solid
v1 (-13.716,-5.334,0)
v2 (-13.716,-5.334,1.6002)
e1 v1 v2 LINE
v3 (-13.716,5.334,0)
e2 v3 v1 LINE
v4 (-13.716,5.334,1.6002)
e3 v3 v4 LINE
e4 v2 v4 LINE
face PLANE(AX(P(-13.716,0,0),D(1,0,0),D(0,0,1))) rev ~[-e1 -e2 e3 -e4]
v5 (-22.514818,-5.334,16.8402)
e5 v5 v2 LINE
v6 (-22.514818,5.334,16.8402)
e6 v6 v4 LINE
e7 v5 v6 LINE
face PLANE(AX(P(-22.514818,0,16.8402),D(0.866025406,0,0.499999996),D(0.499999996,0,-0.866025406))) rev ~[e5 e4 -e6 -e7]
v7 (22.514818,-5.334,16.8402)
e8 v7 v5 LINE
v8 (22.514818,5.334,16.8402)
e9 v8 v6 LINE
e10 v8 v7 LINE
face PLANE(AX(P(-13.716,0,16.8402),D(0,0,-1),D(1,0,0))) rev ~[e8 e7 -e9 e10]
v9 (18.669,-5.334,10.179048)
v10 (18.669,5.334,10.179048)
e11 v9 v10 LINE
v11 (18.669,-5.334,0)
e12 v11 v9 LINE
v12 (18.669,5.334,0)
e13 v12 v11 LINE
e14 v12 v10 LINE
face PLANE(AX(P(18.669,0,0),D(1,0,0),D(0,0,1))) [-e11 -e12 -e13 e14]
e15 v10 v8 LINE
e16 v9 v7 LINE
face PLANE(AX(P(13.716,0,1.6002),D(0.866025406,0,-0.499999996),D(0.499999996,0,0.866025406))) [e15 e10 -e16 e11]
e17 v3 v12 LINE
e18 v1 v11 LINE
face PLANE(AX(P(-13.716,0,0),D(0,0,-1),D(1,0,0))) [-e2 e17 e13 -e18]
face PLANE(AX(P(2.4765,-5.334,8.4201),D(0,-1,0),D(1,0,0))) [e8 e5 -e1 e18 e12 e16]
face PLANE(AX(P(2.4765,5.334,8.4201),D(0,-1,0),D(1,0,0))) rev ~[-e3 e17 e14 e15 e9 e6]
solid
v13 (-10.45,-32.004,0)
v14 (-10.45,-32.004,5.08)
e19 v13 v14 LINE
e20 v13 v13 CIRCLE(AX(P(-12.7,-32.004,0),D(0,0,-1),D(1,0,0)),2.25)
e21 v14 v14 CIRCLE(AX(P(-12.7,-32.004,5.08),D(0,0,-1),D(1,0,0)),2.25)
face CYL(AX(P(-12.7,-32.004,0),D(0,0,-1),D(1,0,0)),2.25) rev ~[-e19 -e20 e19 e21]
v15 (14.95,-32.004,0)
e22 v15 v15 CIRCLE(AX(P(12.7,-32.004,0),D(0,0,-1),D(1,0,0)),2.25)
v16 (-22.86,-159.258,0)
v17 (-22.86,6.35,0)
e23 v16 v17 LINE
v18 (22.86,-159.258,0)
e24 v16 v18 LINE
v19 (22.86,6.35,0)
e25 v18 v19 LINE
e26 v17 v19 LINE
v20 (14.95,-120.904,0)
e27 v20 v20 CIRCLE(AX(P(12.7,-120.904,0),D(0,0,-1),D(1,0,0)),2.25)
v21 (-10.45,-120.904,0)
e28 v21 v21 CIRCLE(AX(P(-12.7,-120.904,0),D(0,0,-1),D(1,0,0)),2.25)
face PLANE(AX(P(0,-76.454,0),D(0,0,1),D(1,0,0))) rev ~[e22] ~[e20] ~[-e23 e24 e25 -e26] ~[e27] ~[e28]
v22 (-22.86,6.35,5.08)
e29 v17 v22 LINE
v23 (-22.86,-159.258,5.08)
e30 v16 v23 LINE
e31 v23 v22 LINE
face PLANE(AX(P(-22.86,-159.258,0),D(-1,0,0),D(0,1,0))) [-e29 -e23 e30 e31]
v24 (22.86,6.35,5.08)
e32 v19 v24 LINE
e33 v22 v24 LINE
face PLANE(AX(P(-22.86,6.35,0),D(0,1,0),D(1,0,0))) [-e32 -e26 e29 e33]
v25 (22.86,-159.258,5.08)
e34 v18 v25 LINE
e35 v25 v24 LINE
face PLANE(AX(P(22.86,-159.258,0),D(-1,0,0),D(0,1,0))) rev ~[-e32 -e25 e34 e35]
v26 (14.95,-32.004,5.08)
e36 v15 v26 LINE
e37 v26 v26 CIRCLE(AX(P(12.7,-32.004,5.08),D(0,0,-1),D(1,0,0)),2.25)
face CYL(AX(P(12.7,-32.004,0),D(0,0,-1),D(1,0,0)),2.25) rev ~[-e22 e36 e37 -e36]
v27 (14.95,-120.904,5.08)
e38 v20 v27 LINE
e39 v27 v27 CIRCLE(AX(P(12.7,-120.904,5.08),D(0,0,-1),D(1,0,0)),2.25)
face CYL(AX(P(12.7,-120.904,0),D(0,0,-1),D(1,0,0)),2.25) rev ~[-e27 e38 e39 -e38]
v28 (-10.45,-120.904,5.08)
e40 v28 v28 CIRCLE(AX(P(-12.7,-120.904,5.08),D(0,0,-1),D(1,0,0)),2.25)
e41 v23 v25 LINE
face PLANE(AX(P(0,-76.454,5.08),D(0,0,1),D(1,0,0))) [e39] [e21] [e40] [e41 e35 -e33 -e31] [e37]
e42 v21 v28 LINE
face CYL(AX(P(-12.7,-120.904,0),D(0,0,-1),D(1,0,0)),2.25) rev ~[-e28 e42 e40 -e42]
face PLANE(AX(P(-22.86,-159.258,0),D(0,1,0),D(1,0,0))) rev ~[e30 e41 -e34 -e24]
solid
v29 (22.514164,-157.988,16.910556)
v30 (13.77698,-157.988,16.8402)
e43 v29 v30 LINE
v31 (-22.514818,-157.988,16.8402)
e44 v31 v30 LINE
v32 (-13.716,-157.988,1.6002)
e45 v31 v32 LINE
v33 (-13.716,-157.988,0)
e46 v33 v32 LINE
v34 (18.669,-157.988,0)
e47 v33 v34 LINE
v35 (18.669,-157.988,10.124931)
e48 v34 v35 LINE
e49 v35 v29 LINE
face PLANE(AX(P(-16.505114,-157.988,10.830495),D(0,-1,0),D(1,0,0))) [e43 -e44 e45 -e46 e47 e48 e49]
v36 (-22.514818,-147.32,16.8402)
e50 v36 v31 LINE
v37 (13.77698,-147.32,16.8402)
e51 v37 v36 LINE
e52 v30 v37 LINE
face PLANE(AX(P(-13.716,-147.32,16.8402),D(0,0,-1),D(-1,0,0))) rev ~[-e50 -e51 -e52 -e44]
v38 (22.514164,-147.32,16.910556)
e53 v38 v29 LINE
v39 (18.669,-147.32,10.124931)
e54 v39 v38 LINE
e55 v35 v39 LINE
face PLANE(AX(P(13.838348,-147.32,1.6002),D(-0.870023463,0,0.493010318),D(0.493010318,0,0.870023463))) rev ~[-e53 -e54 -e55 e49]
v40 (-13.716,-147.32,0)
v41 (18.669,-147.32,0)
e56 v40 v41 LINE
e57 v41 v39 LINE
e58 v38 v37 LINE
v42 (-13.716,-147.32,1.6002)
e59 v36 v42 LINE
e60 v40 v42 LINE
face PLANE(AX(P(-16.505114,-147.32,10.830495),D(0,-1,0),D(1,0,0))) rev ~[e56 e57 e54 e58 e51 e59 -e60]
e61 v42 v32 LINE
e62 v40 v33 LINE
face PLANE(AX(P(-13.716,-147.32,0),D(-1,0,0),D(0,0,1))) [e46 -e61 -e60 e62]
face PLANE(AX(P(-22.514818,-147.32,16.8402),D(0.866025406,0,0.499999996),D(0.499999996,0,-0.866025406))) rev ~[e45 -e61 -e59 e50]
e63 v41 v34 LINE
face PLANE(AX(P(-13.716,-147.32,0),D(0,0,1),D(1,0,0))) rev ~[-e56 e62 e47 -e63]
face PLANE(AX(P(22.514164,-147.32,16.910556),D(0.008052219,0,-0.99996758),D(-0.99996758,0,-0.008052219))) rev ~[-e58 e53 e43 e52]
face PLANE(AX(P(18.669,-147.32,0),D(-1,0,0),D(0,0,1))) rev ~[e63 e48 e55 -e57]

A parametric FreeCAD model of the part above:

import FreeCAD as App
import Part
import Sketcher

V = App.Vector
Q = App.Units.Quantity


def add_polygon(sketch, points):
    """Adds a closed chain of lines whose ends are joined by coincident constraints."""
    first, n = sketch.GeometryCount, len(points)
    for a, b in zip(points, points[1:] + points[:1]):
        sketch.addGeometry(Part.LineSegment(App.Vector(*a, 0), App.Vector(*b, 0)), False)
    for i in range(n):
        sketch.addConstraint(Sketcher.Constraint("Coincident", first + i, 2, first + (i + 1) % n, 1))

doc = App.newDocument("Part")
body = doc.addObject("PartDesign::Body", "Body")

sketch1 = doc.addObject("Sketcher::SketchObject", "Sketch")
body.addObject(sketch1)
sketch1.AttachmentSupport = (doc.XY_Plane, [""])
sketch1.MapMode = "FlatFace"
add_polygon(sketch1, [(-23, 6), (-23, -159), (23, -159), (23, 6)])
sketch1.addConstraint([
    Sketcher.Constraint("Vertical", 0),
    Sketcher.Constraint("Horizontal", 1),
    Sketcher.Constraint("Vertical", 2),
    Sketcher.Constraint("Horizontal", 3),
    Sketcher.Constraint("DistanceX", 1, 1, 1, 2, Q("1.8 in")),
    Sketcher.Constraint("DistanceY", 0, 2, 0, 1, Q("6.52 in")),
    Sketcher.Constraint("DistanceX", 0, 2, -1, 1, Q("0.9 in")),
    Sketcher.Constraint("DistanceY", 0, 2, -1, 1, Q("6.27 in")),
])
pad1 = doc.addObject("PartDesign::Pad", "Pad")
body.addObject(pad1)
pad1.Profile = sketch1
pad1.Length = Q("0.2 in")

sketch2 = doc.addObject("Sketcher::SketchObject", "Sketch001")
body.addObject(sketch2)
sketch2.AttachmentSupport = (doc.XY_Plane, [""])
sketch2.MapMode = "FlatFace"
sketch2.addGeometry([
    Part.Circle(V(-12.7, -120.9, 0), V(0, 0, 1), 2.2),
    Part.Circle(V(-12.7, -32, 0), V(0, 0, 1), 2.2),
    Part.Circle(V(12.7, -120.9, 0), V(0, 0, 1), 2.2),
    Part.Circle(V(12.7, -32, 0), V(0, 0, 1), 2.2),
], False)
sketch2.addConstraint([
    Sketcher.Constraint("Equal", 0, 1),
    Sketcher.Constraint("Equal", 1, 2),
    Sketcher.Constraint("Equal", 2, 3),
    Sketcher.Constraint("Symmetric", 0, 3, 2, 3, -2),
    Sketcher.Constraint("Symmetric", 1, 3, 3, 3, -2),
    Sketcher.Constraint("Vertical", 0, 3, 1, 3),
    Sketcher.Constraint("DistanceX", 0, 3, 2, 3, Q("1 in")),
    Sketcher.Constraint("DistanceY", 0, 3, 1, 3, Q("3.5 in")),
    Sketcher.Constraint("Diameter", 0, 4.5),
    Sketcher.Constraint("DistanceY", 0, 3, -1, 1, Q("4.76 in")),
])
pocket1 = doc.addObject("PartDesign::Pocket", "Pocket")
body.addObject(pocket1)
pocket1.Profile = sketch2
pocket1.Length = Q("0.984 in")
pocket1.Reversed = True
body2 = doc.addObject("PartDesign::Body", "Body001")

sketch3 = doc.addObject("Sketcher::SketchObject", "Sketch002")
body2.addObject(sketch3)
sketch3.AttachmentSupport = (doc.getObject("XZ_Plane001"), [""])
sketch3.MapMode = "FlatFace"
add_polygon(sketch3, [(-14, 17), (-14, 0), (19, 0), (19, 17)])
sketch3.addConstraint([
    Sketcher.Constraint("Vertical", 0),
    Sketcher.Constraint("Horizontal", 1),
    Sketcher.Constraint("Vertical", 2),
    Sketcher.Constraint("Horizontal", 3),
    Sketcher.Constraint("PointOnObject", 0, 2, -1),
    Sketcher.Constraint("DistanceX", 1, 1, 1, 2, Q("1.275 in")),
    Sketcher.Constraint("DistanceY", 0, 2, 0, 1, Q("0.663 in")),
    Sketcher.Constraint("DistanceX", 0, 2, -1, 1, Q("0.54 in")),
])
pad2 = doc.addObject("PartDesign::Pad", "Pad001")
body2.addObject(pad2)
pad2.Profile = sketch3
pad2.Length = Q("0.42 in")
pad2.Midplane = True

sketch4 = doc.addObject("Sketcher::SketchObject", "Sketch003")
body2.addObject(sketch4)
sketch4.AttachmentSupport = (doc.getObject("XZ_Plane001"), [""])
sketch4.MapMode = "FlatFace"
add_polygon(sketch4, [(-14, 2), (-14, 17), (-23, 17)])
add_polygon(sketch4, [(14, 2), (23, 17), (14, 17)])
sketch4.addConstraint([
    Sketcher.Constraint("Vertical", 0),
    Sketcher.Constraint("Horizontal", 1),
    Sketcher.Constraint("Horizontal", 4),
    Sketcher.Constraint("Vertical", 5),
    Sketcher.Constraint("Symmetric", 1, 2, 3, 2, -2),
    Sketcher.Constraint("Symmetric", 2, 2, 5, 2, -2),
    Sketcher.Constraint("DistanceY", 0, 1, 0, 2, Q("0.6 in")),
    Sketcher.Constraint("Angle", 2, Q("-60 deg")),
    Sketcher.Constraint("DistanceX", 0, 2, -1, 1, Q("0.54 in")),
    Sketcher.Constraint("DistanceY", -1, 1, 0, 2, Q("0.663 in")),
])
pad3 = doc.addObject("PartDesign::Pad", "Pad002")
body2.addObject(pad3)
pad3.Profile = sketch4
pad3.Length = Q("0.42 in")
pad3.Midplane = True
body3 = doc.addObject("PartDesign::Body", "Body002")

sketch5 = doc.addObject("Sketcher::SketchObject", "Sketch004")
body3.addObject(sketch5)
sketch5.AttachmentSupport = (doc.getObject("XZ_Plane002"), [""])
sketch5.MapMode = "FlatFace"
sketch5.AttachmentOffset = App.Placement(V(0, 0, 5.8 * 25.4), App.Rotation())
add_polygon(sketch5, [(-14, 17), (-14, 0), (19, 0), (19, 17)])
sketch5.addConstraint([
    Sketcher.Constraint("Vertical", 0),
    Sketcher.Constraint("Horizontal", 1),
    Sketcher.Constraint("Vertical", 2),
    Sketcher.Constraint("Horizontal", 3),
    Sketcher.Constraint("PointOnObject", 0, 2, -1),
    Sketcher.Constraint("DistanceX", 1, 1, 1, 2, Q("1.275 in")),
    Sketcher.Constraint("DistanceY", 0, 2, 0, 1, Q("0.663 in")),
    Sketcher.Constraint("DistanceX", 0, 2, -1, 1, Q("0.54 in")),
])
pad4 = doc.addObject("PartDesign::Pad", "Pad003")
body3.addObject(pad4)
pad4.Profile = sketch5
pad4.Length = Q("0.42 in")

sketch6 = doc.addObject("Sketcher::SketchObject", "Sketch005")
body3.addObject(sketch6)
sketch6.AttachmentSupport = (doc.getObject("XZ_Plane002"), [""])
sketch6.MapMode = "FlatFace"
sketch6.AttachmentOffset = App.Placement(V(0, 0, 5.8 * 25.4), App.Rotation())
add_polygon(sketch6, [(-14, 2), (-14, 17), (-23, 17)])
add_polygon(sketch6, [(14, 2), (23, 17), (14, 17)])
sketch6.addConstraint([
    Sketcher.Constraint("Vertical", 0),
    Sketcher.Constraint("Horizontal", 1),
    Sketcher.Constraint("Perpendicular", 4, 5),
    Sketcher.Constraint("Horizontal", 2, 2, 5, 2),
    Sketcher.Constraint("Equal", 2, 3),
    Sketcher.Constraint("DistanceY", 0, 1, 0, 2, Q("0.6 in")),
    Sketcher.Constraint("Angle", 2, Q("-60 deg")),
    Sketcher.Constraint("Distance", 5, Q("0.6 in")),
    Sketcher.Constraint("DistanceX", 0, 2, -1, 1, Q("0.54 in")),
    Sketcher.Constraint("DistanceY", -1, 1, 0, 2, Q("0.663 in")),
    Sketcher.Constraint("DistanceX", -1, 1, 4, 2, 13.715632),
    Sketcher.Constraint("DistanceY", 4, 2, 3, 2, 0.07085),
])
pad5 = doc.addObject("PartDesign::Pad", "Pad004")
body3.addObject(pad5)
pad5.Profile = sketch6
pad5.Length = Q("0.42 in")

doc.recompute()
